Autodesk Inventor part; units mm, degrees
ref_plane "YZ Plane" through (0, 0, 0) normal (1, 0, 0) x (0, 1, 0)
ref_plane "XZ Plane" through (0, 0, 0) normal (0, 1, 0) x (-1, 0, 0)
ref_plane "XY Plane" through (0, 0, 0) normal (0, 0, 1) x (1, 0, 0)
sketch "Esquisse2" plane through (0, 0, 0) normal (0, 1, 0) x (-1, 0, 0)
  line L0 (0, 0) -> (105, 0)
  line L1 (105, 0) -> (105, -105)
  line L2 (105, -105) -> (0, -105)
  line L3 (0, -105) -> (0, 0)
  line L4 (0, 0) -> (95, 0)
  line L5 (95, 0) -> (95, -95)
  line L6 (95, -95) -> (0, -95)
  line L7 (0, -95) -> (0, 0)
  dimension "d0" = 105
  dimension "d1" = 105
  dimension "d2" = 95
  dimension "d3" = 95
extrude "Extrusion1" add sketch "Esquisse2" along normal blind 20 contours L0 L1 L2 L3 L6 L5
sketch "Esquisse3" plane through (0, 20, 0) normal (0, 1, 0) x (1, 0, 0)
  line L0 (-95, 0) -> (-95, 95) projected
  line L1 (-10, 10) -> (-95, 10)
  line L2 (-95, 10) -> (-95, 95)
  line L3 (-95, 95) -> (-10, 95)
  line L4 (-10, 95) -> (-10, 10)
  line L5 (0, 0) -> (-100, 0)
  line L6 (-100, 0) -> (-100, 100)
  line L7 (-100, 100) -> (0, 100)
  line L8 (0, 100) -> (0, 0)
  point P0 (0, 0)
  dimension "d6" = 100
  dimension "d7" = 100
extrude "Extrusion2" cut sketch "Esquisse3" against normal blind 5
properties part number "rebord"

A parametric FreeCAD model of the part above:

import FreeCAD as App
import Part
import Sketcher


def add_polygon(sketch, points):
    """Adds a closed chain of lines whose ends are joined by coincident constraints."""
    first, n = sketch.GeometryCount, len(points)
    for a, b in zip(points, points[1:] + points[:1]):
        sketch.addGeometry(Part.LineSegment(App.Vector(*a, 0), App.Vector(*b, 0)), False)
    for i in range(n):
        sketch.addConstraint(Sketcher.Constraint("Coincident", first + i, 2, first + (i + 1) % n, 1))

doc = App.newDocument("Part")
params = doc.addObject("Spreadsheet::Sheet", "Params")
for row, (alias, value) in enumerate([
    ("sketch1_width", "95 mm"),
    ("sketch1_width2", "105 mm"),
    ("pad1_length", "20 mm"),
    ("sketch2_width", "100 mm"),
    ("sketch2_width2", "5 mm"),
    ("sketch2_width3", "85 mm"),
    ("pocket1_length", "5 mm"),
], start=1):
    params.set(f"A{row}", alias)
    params.set(f"B{row}", "=" + value)
    params.setAlias(f"B{row}", alias)

body = doc.addObject("PartDesign::Body", "Body")

# Sketch on XZ plane
sketch1 = body.newObject("Sketcher::SketchObject", "Sketch")
sketch1.AttachmentSupport = (doc.getObject("XZ_Plane"), [""])
sketch1.MapMode = "FlatFace"
add_polygon(sketch1, [(-105, 0), (-95, 0), (-95, -95), (0, -95), (0, -105), (-105, -105)])  # lines 0-5
sketch1.addConstraint(Sketcher.Constraint("Horizontal", 0))
sketch1.addConstraint(Sketcher.Constraint("Vertical", 1))
sketch1.addConstraint(Sketcher.Constraint("Horizontal", 2))
sketch1.addConstraint(Sketcher.Constraint("Vertical", 3))
sketch1.addConstraint(Sketcher.Constraint("Horizontal", 4))
sketch1.addConstraint(Sketcher.Constraint("Vertical", 5))
sketch1.addConstraint(Sketcher.Constraint("PointOnObject", 0, 2, -1))
sketch1.addConstraint(Sketcher.Constraint("PointOnObject", 2, 2, -2))
sketch1.addConstraint(Sketcher.Constraint("Equal", 2, 1))
sketch1.addConstraint(Sketcher.Constraint("Equal", 0, 3))
sketch1.addConstraint(Sketcher.Constraint("DistanceX", 2, 1, 2, 2, 95.0))
sketch1.addConstraint(Sketcher.Constraint("DistanceX", 4, 2, 4, 1, 105.0))
sketch1.setExpression("Constraints[16]", "Params.sketch1_width")
sketch1.setExpression("Constraints[17]", "Params.sketch1_width2")
pad1 = body.newObject("PartDesign::Pad", "Pad")
pad1.Profile = sketch1
pad1.setExpression("Length", "Params.pad1_length")
pad1.Reversed = True

# Sketch on XZ plane
sketch2 = body.newObject("Sketcher::SketchObject", "Sketch001")
sketch2.AttachmentSupport = (doc.getObject("XZ_Plane"), [""])
sketch2.MapMode = "FlatFace"
sketch2.AttachmentOffset = App.Placement(App.Vector(0, 0, -20), App.Rotation())
add_polygon(sketch2, [(-100, 0), (-95, 0), (0, 0), (0, -100), (-100, -100)])  # lines 0-4
add_polygon(sketch2, [(-10, -10), (-95, -10), (-95, -95), (-10, -95)])  # lines 5-8
sketch2.addConstraint(Sketcher.Constraint("Horizontal", 0))
sketch2.addConstraint(Sketcher.Constraint("Horizontal", 1))
sketch2.addConstraint(Sketcher.Constraint("Vertical", 2))
sketch2.addConstraint(Sketcher.Constraint("Horizontal", 3))
sketch2.addConstraint(Sketcher.Constraint("Vertical", 4))
sketch2.addConstraint(Sketcher.Constraint("Horizontal", 5))
sketch2.addConstraint(Sketcher.Constraint("Vertical", 6))
sketch2.addConstraint(Sketcher.Constraint("Horizontal", 7))
sketch2.addConstraint(Sketcher.Constraint("Vertical", 8))
sketch2.addConstraint(Sketcher.Constraint("Coincident", 1, 2, -1, 1))
sketch2.addConstraint(Sketcher.Constraint("Vertical", 0, 2, 5, 2))
sketch2.addConstraint(Sketcher.Constraint("Equal", 3, 2))
sketch2.addConstraint(Sketcher.Constraint("Equal", 7, 6))
sketch2.addConstraint(Sketcher.Constraint("DistanceX", 3, 2, 3, 1, 100.0))
sketch2.addConstraint(Sketcher.Constraint("DistanceX", 0, 1, 0, 2, 5.0))
sketch2.addConstraint(Sketcher.Constraint("DistanceX", 5, 2, 5, 1, 85.0))
sketch2.addConstraint(Sketcher.Constraint("DistanceY", 5, 2, -1, 1, 10.0))
sketch2.setExpression("Constraints[22]", "Params.sketch2_width")
sketch2.setExpression("Constraints[23]", "Params.sketch2_width2")
sketch2.setExpression("Constraints[24]", "Params.sketch2_width3")
pocket1 = body.newObject("PartDesign::Pocket", "Pocket")
pocket1.Profile = sketch2
pocket1.setExpression("Length", "Params.pocket1_length")
pocket1.Reversed = True

doc.recompute()
